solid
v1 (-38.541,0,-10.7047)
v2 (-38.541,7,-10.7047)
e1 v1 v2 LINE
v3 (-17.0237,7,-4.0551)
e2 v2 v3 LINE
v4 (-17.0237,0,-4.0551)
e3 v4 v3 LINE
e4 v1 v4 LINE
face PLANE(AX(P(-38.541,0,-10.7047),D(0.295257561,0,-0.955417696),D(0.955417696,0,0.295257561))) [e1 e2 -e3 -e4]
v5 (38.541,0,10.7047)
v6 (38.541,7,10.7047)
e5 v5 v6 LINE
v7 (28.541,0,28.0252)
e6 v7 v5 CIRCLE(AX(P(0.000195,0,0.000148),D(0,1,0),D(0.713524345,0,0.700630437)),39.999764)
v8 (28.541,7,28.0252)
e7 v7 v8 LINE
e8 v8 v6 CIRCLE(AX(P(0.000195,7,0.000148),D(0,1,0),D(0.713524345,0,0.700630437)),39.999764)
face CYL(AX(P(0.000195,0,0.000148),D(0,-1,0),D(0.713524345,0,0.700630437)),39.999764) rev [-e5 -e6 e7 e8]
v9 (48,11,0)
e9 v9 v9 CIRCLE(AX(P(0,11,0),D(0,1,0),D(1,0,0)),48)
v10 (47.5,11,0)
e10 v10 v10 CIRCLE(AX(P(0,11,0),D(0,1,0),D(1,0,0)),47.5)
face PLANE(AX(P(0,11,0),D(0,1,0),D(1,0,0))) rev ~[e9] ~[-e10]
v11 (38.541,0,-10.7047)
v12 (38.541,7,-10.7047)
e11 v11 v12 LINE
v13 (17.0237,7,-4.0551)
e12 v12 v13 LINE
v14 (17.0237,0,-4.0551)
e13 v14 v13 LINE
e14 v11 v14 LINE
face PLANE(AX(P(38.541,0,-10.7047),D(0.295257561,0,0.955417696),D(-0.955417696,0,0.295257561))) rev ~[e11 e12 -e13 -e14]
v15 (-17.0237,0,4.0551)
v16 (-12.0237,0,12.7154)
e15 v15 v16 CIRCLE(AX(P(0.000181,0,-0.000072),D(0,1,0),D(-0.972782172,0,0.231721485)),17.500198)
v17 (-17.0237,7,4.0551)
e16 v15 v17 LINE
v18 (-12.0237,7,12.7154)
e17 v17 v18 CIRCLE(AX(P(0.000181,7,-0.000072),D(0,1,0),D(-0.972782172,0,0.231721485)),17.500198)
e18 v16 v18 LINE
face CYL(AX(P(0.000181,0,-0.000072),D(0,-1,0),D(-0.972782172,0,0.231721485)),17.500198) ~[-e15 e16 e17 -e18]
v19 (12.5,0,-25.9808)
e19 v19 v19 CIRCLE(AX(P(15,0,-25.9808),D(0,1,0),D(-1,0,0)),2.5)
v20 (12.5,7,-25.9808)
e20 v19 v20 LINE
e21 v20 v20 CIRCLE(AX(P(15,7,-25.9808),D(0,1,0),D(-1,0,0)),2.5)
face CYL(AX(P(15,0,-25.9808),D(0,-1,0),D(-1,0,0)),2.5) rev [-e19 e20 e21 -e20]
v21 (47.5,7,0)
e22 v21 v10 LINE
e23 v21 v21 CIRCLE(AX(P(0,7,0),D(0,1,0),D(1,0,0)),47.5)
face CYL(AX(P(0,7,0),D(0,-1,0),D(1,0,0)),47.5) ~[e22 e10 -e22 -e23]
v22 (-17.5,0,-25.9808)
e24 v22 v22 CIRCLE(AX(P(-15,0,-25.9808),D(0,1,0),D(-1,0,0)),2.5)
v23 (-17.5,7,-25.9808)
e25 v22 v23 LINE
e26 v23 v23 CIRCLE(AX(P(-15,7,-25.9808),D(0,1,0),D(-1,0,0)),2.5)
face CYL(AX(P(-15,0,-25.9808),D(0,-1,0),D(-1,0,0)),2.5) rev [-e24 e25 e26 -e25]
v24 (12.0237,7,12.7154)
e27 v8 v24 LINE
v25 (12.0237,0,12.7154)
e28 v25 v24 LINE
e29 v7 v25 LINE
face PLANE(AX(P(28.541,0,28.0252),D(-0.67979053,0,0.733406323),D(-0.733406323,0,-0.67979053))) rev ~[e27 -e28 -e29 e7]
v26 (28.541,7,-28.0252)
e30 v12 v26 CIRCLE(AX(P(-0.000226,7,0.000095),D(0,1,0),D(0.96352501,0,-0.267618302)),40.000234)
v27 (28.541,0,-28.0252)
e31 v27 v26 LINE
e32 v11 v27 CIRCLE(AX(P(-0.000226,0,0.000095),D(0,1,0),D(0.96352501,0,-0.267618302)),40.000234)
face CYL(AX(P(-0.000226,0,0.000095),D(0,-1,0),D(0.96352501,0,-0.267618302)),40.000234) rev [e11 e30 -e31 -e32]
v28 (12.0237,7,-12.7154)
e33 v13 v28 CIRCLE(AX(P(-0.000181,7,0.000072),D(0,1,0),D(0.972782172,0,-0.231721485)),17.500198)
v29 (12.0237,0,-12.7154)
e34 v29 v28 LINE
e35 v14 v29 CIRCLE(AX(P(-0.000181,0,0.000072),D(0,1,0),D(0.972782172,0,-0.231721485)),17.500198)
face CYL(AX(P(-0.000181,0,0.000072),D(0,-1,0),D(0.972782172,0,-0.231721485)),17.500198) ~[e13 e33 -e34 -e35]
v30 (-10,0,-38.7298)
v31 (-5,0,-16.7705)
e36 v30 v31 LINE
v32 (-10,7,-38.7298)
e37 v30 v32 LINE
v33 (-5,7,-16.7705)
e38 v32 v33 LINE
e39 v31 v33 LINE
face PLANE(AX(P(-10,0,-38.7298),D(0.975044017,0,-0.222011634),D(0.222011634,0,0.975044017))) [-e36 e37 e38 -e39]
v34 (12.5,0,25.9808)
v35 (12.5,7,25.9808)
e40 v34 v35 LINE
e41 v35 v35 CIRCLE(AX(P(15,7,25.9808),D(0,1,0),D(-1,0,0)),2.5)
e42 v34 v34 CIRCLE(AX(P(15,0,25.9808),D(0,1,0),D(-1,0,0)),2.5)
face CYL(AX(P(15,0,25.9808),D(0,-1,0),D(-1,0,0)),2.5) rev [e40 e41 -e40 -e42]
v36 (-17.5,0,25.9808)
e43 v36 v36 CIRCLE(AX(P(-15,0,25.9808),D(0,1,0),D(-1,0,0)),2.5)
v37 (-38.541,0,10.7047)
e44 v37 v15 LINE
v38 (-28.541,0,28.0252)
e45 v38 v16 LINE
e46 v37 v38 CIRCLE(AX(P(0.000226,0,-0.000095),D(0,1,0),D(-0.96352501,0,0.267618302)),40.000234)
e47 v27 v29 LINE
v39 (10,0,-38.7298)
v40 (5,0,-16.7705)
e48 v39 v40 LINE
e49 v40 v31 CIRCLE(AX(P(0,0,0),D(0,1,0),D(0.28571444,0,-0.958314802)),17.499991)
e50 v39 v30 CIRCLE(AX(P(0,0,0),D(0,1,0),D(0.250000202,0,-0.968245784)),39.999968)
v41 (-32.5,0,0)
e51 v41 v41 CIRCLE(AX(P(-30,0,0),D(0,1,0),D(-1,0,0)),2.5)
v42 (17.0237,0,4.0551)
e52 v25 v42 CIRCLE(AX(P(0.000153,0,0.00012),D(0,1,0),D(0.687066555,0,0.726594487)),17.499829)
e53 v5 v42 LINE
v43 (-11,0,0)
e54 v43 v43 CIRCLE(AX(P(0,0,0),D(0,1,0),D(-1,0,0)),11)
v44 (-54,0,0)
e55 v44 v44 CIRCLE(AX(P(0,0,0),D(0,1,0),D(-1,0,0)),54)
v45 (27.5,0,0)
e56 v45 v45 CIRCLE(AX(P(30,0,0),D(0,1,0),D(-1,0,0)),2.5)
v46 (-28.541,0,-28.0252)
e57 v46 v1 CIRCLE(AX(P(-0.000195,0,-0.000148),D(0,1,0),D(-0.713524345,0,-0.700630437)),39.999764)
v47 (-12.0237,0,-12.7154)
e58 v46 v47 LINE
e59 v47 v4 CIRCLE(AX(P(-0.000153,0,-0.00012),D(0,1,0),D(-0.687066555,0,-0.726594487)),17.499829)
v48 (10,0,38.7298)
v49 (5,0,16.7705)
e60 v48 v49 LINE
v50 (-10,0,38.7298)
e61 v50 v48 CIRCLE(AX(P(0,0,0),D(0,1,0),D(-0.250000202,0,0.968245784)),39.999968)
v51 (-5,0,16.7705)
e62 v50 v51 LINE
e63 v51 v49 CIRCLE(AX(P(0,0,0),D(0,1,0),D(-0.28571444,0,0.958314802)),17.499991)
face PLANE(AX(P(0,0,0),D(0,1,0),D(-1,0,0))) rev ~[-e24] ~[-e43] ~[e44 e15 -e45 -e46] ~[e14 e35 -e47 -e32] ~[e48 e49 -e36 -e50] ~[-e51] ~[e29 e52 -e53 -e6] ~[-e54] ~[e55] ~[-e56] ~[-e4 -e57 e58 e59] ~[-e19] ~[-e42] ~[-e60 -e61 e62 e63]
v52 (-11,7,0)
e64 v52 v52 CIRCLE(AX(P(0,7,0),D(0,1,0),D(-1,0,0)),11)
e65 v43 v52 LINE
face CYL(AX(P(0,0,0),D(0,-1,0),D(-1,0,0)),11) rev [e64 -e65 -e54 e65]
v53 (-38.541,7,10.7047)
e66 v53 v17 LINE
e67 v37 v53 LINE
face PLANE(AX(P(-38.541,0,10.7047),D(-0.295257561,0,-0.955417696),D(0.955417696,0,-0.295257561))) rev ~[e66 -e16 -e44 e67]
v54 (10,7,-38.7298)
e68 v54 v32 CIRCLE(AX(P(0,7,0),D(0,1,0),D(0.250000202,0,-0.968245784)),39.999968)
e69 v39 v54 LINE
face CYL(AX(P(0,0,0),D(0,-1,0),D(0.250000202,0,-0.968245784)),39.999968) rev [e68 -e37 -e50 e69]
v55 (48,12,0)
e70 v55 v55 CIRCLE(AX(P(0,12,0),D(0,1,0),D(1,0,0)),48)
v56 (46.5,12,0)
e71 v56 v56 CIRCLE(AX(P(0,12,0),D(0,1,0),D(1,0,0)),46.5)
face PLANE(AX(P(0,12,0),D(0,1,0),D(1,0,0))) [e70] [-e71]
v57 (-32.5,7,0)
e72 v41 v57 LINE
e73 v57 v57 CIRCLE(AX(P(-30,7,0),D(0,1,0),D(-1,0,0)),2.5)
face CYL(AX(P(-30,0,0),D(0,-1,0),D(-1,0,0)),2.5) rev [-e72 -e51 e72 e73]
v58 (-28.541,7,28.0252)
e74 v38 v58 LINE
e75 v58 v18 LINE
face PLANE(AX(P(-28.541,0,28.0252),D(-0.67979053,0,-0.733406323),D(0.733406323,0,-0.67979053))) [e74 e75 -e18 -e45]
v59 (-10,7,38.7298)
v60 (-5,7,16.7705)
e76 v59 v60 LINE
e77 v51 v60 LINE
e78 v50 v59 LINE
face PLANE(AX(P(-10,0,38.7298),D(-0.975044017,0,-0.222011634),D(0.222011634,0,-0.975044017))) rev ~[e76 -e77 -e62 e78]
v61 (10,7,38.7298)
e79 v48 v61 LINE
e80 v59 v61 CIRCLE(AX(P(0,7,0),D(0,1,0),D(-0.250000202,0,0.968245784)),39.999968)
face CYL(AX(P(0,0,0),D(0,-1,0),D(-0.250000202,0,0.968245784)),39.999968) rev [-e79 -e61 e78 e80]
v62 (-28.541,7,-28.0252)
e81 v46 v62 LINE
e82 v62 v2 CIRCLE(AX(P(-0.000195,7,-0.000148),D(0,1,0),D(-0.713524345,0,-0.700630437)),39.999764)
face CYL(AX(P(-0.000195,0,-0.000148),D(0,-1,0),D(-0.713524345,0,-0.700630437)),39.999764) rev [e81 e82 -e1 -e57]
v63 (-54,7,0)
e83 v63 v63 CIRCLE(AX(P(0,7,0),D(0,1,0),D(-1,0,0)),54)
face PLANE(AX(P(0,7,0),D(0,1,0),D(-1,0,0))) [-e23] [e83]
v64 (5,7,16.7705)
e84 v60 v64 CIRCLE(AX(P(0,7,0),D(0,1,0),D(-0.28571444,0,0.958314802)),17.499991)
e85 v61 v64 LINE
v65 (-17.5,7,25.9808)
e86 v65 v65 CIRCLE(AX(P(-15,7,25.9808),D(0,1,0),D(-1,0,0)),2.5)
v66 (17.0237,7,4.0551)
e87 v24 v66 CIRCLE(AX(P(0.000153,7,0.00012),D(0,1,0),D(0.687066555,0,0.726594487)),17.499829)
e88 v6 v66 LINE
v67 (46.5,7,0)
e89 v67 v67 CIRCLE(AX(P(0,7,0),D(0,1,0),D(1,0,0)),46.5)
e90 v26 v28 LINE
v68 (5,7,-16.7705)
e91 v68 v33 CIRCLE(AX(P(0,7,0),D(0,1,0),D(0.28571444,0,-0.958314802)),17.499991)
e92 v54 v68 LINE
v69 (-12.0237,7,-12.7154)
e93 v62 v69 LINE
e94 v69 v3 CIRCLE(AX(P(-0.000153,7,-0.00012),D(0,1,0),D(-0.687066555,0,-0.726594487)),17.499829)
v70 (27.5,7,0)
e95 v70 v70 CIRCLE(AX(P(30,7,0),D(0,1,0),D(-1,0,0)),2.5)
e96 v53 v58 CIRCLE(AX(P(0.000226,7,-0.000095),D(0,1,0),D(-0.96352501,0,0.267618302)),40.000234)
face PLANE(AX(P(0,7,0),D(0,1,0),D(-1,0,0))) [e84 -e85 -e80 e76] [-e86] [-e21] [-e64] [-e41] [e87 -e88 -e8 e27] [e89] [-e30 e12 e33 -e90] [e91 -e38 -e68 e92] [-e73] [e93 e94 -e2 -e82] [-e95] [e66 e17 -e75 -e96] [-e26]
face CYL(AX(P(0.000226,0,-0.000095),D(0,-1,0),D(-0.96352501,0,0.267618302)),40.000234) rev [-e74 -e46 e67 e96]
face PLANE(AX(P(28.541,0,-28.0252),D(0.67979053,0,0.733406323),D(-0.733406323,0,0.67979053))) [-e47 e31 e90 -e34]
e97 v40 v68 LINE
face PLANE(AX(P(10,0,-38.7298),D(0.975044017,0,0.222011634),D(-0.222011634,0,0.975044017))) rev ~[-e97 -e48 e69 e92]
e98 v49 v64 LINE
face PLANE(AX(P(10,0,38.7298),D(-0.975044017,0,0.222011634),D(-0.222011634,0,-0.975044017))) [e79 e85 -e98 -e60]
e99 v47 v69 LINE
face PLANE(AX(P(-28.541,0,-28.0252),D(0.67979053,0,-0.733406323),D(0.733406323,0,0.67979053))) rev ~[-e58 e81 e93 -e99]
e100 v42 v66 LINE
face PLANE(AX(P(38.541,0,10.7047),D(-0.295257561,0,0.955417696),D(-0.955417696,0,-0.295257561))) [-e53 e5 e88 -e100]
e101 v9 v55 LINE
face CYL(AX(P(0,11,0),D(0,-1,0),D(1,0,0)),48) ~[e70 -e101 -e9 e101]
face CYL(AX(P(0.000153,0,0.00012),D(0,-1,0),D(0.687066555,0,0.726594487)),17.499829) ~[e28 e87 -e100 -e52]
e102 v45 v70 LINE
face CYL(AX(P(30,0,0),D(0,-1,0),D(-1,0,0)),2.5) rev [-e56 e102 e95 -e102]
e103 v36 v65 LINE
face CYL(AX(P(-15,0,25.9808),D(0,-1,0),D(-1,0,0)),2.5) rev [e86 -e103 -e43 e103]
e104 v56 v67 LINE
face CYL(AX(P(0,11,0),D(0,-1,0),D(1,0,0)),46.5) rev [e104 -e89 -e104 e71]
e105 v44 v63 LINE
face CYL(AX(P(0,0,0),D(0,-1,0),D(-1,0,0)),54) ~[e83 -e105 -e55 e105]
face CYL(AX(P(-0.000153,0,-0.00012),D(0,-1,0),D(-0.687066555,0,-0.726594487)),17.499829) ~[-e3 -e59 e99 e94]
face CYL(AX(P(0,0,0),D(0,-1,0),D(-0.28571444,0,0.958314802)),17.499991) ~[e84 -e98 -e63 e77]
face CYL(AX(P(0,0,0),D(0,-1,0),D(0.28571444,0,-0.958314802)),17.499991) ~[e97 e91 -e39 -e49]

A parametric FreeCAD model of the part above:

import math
import FreeCAD as App
import Part
import Sketcher

doc = App.newDocument("Part")
params = doc.addObject("Spreadsheet::Sheet", "Params")
for row, (alias, value) in enumerate([
    ("sketch1_diameter", "108 mm"),
    ("sketch1_diameter2", "5 mm"),
    ("sketch1_diameter3", "22 mm"),
    ("sketch1_radius", "40 mm"),
    ("sketch1_radius2", "17.5 mm"),
    ("pad1_length", "7 mm"),
    ("sketch2_diameter", "95 mm"),
    ("sketch2_diameter2", "93 mm"),
    ("pad2_length", "4 mm"),
    ("sketch3_diameter", "96 mm"),
    ("sketch3_diameter2", "93 mm"),
    ("pad3_length", "1 mm"),
], start=1):
    params.set(f"A{row}", alias)
    params.set(f"B{row}", "=" + value)
    params.setAlias(f"B{row}", alias)

body = doc.addObject("PartDesign::Body", "Body")

# Sketch on XZ plane
sketch1 = body.newObject("Sketcher::SketchObject", "Sketch")
sketch1.AttachmentSupport = (doc.getObject("XZ_Plane"), [""])
sketch1.MapMode = "FlatFace"
sketch1.addGeometry([
    Part.Circle(App.Vector(0, 0, 0), App.Vector(0, 0, 1), 54),  # 0
    Part.Circle(App.Vector(15, -25.9808, 0), App.Vector(0, 0, 1), 2.5),  # 1
    Part.ArcOfCircle(Part.Circle(App.Vector(0, 0, 0), App.Vector(0, 0, 1), 40.000006), math.radians(-44.477562), math.radians(-15.522547)),  # 2
    Part.LineSegment(App.Vector(38.541, -10.7047, 0), App.Vector(17.0237, -4.0551, 0)),  # 3
    Part.ArcOfCircle(Part.Circle(App.Vector(0, 0, 0), App.Vector(0, 0, 1), 17.500022), math.radians(-46.601561), math.radians(-13.398352)),  # 4
    Part.LineSegment(App.Vector(12.0237, -12.7154, 0), App.Vector(28.541, -28.0252, 0)),  # 5
    Part.ArcOfCircle(Part.Circle(App.Vector(0, 0, 0), App.Vector(0, 0, 1), 39.999968), math.radians(-104.477524), math.radians(-75.522476)),  # 6
    Part.LineSegment(App.Vector(10, -38.7298, 0), App.Vector(5, -16.7705, 0)),  # 7
    Part.ArcOfCircle(Part.Circle(App.Vector(0, 0, 0), App.Vector(0, 0, 1), 17.499991), math.radians(-106.601559), math.radians(-73.398441)),  # 8
    Part.LineSegment(App.Vector(-5, -16.7705, 0), App.Vector(-10, -38.7298, 0)),  # 9
    Part.Circle(App.Vector(-15, -25.9808, 0), App.Vector(0, 0, 1), 2.5),  # 10
    Part.ArcOfCircle(Part.Circle(App.Vector(0, 0, 0), App.Vector(0, 0, 1), 39.999968), math.radians(-164.477453), math.radians(-135.522438)),  # 11
    Part.LineSegment(App.Vector(-28.541, -28.0252, 0), App.Vector(-12.0237, -12.7154, 0)),  # 12
    Part.ArcOfCircle(Part.Circle(App.Vector(0, 0, 0), App.Vector(0, 0, 1), 17.499991), math.radians(-166.601648), math.radians(-133.398439)),  # 13
    Part.LineSegment(App.Vector(-17.0237, -4.0551, 0), App.Vector(-38.541, -10.7047, 0)),  # 14
    Part.Circle(App.Vector(30, 0, 0), App.Vector(0, 0, 1), 2.5),  # 15
    Part.ArcOfCircle(Part.Circle(App.Vector(0, 0, 0), App.Vector(0, 0, 1), 39.999968), math.radians(15.522547), math.radians(44.477562)),  # 16
    Part.LineSegment(App.Vector(28.541, 28.0252, 0), App.Vector(12.0237, 12.7154, 0)),  # 17
    Part.ArcOfCircle(Part.Circle(App.Vector(0, 0, 0), App.Vector(0, 0, 1), 17.499991), math.radians(13.398352), math.radians(46.601561)),  # 18
    Part.LineSegment(App.Vector(17.0237, 4.0551, 0), App.Vector(38.541, 10.7047, 0)),  # 19
    Part.Circle(App.Vector(15, 25.9808, 0), App.Vector(0, 0, 1), 2.5),  # 20
    Part.Circle(App.Vector(0, 0, 0), App.Vector(0, 0, 1), 11),  # 21
    Part.ArcOfCircle(Part.Circle(App.Vector(0, 0, 0), App.Vector(0, 0, 1), 40.000006), math.radians(135.522438), math.radians(164.477453)),  # 22
    Part.LineSegment(App.Vector(-38.541, 10.7047, 0), App.Vector(-17.0237, 4.0551, 0)),  # 23
    Part.ArcOfCircle(Part.Circle(App.Vector(0, 0, 0), App.Vector(0, 0, 1), 17.500022), math.radians(133.398439), math.radians(166.601648)),  # 24
    Part.LineSegment(App.Vector(-12.0237, 12.7154, 0), App.Vector(-28.541, 28.0252, 0)),  # 25
    Part.Circle(App.Vector(-15, 25.9808, 0), App.Vector(0, 0, 1), 2.5),  # 26
    Part.Circle(App.Vector(-30, 0, 0), App.Vector(0, 0, 1), 2.5),  # 27
    Part.LineSegment(App.Vector(5, 16.7705, 0), App.Vector(10, 38.7298, 0)),  # 28
    Part.ArcOfCircle(Part.Circle(App.Vector(0, 0, 0), App.Vector(0, 0, 1), 39.999968), math.radians(75.522476), math.radians(104.477524)),  # 29
    Part.LineSegment(App.Vector(-10, 38.7298, 0), App.Vector(-5, 16.7705, 0)),  # 30
    Part.ArcOfCircle(Part.Circle(App.Vector(0, 0, 0), App.Vector(0, 0, 1), 17.499991), math.radians(73.398441), math.radians(106.601559)),  # 31
], False)
sketch1.addConstraint([
    Sketcher.Constraint("Coincident", 2, 2, 3, 1),
    Sketcher.Constraint("Coincident", 3, 2, 4, 2),
    Sketcher.Constraint("Coincident", 4, 1, 5, 1),
    Sketcher.Constraint("Coincident", 5, 2, 2, 1),
    Sketcher.Constraint("Coincident", 6, 2, 7, 1),
    Sketcher.Constraint("Coincident", 7, 2, 8, 2),
    Sketcher.Constraint("Coincident", 8, 1, 9, 1),
    Sketcher.Constraint("Coincident", 9, 2, 6, 1),
    Sketcher.Constraint("Coincident", 11, 2, 12, 1),
    Sketcher.Constraint("Coincident", 12, 2, 13, 2),
    Sketcher.Constraint("Coincident", 13, 1, 14, 1),
    Sketcher.Constraint("Coincident", 14, 2, 11, 1),
    Sketcher.Constraint("Coincident", 16, 2, 17, 1),
    Sketcher.Constraint("Coincident", 17, 2, 18, 2),
    Sketcher.Constraint("Coincident", 18, 1, 19, 1),
    Sketcher.Constraint("Coincident", 19, 2, 16, 1),
    Sketcher.Constraint("Coincident", 22, 2, 23, 1),
    Sketcher.Constraint("Coincident", 23, 2, 24, 2),
    Sketcher.Constraint("Coincident", 24, 1, 25, 1),
    Sketcher.Constraint("Coincident", 25, 2, 22, 1),
    Sketcher.Constraint("Coincident", 28, 2, 29, 1),
    Sketcher.Constraint("Coincident", 29, 2, 30, 1),
    Sketcher.Constraint("Coincident", 30, 2, 31, 2),
    Sketcher.Constraint("Coincident", 31, 1, 28, 1),
    Sketcher.Constraint("Coincident", 0, 3, -1, 1),
    Sketcher.Constraint("Coincident", 2, 3, -1, 1),
    Sketcher.Constraint("Coincident", 4, 3, -1, 1),
    Sketcher.Constraint("Coincident", 6, 3, -1, 1),
    Sketcher.Constraint("Coincident", 8, 3, -1, 1),
    Sketcher.Constraint("Coincident", 11, 3, -1, 1),
    Sketcher.Constraint("Coincident", 13, 3, -1, 1),
    Sketcher.Constraint("Coincident", 16, 3, -1, 1),
    Sketcher.Constraint("Coincident", 18, 3, -1, 1),
    Sketcher.Constraint("Coincident", 21, 3, -1, 1),
    Sketcher.Constraint("Coincident", 22, 3, -1, 1),
    Sketcher.Constraint("Coincident", 24, 3, -1, 1),
    Sketcher.Constraint("Coincident", 29, 3, -1, 1),
    Sketcher.Constraint("Coincident", 31, 3, -1, 1),
    Sketcher.Constraint("Equal", 2, 6),
    Sketcher.Constraint("Equal", 4, 8),
    Sketcher.Constraint("Equal", 1, 10),
    Sketcher.Constraint("Equal", 6, 11),
    Sketcher.Constraint("Equal", 8, 13),
    Sketcher.Constraint("Equal", 10, 15),
    Sketcher.Constraint("Equal", 11, 16),
    Sketcher.Constraint("Equal", 13, 18),
    Sketcher.Constraint("Equal", 15, 20),
    Sketcher.Constraint("Equal", 16, 22),
    Sketcher.Constraint("Equal", 18, 24),
    Sketcher.Constraint("Equal", 20, 26),
    Sketcher.Constraint("Equal", 26, 27),
    Sketcher.Constraint("Equal", 22, 29),
    Sketcher.Constraint("Equal", 24, 31),
    Sketcher.Constraint("Symmetric", 10, 3, 20, 3, -1, 1),
    Sketcher.Constraint("Symmetric", 1, 3, 26, 3, -1, 1),
    Sketcher.Constraint("Symmetric", 15, 3, 27, 3, -1, 1),
    Sketcher.Constraint("Symmetric", 1, 3, 10, 3, -2),
    Sketcher.Constraint("PointOnObject", 15, 3, -1),
    Sketcher.Constraint("Parallel", 12, 17),
    Sketcher.Constraint("Parallel", 14, 19),
    Sketcher.Constraint("Parallel", 3, 23),
    Sketcher.Constraint("Parallel", 5, 25),
    Sketcher.Constraint("Parallel", 9, 28),
    Sketcher.Constraint("Parallel", 7, 30),
    Sketcher.Constraint("Horizontal", 7, 2, 8, 1),
    Sketcher.Constraint("Horizontal", 6, 2, 9, 2),
    Sketcher.Constraint("Horizontal", 5, 2, 11, 2),
    Sketcher.Constraint("Horizontal", 4, 1, 12, 2),
    Sketcher.Constraint("Horizontal", 3, 2, 13, 1),
    Sketcher.Constraint("Horizontal", 2, 2, 14, 2),
    Sketcher.Constraint("Horizontal", 19, 2, 22, 2),
    Sketcher.Constraint("Horizontal", 17, 2, 24, 1),
    Sketcher.Constraint("Horizontal", 28, 2, 29, 2),
    Sketcher.Constraint("Vertical", 5, 2, 16, 2),
    Sketcher.Constraint("Vertical", 3, 2, 18, 1),
    Sketcher.Constraint("Vertical", 6, 2, 28, 2),
    Sketcher.Constraint("Equal", 3, 5),
    Sketcher.Constraint("Equal", 5, 7),
    Sketcher.Constraint("Diameter", 0, 108.0),
    Sketcher.Constraint("Diameter", 1, 5.0),
    Sketcher.Constraint("Diameter", 21, 22.0),
    Sketcher.Constraint("Radius", 2, 40.0),
    Sketcher.Constraint("Radius", 4, 17.5),
    Sketcher.Constraint("DistanceX", -1, 1, 6, 2, 10.0),
    Sketcher.Constraint("DistanceX", -1, 1, 7, 2, 5.0),
    Sketcher.Constraint("DistanceX", 4, 1, 3, 2, 5.0),
    Sketcher.Constraint("DistanceX", 6, 2, 1, 3, 5.0),
    Sketcher.Constraint("DistanceX", -1, 1, 15, 3, 30.0),
    Sketcher.Constraint("DistanceY", 5, 2, 3, 2, 23.97),
    Sketcher.Constraint("DistanceY", 1, 3, 2, 2, 15.276),
])
sketch1.setExpression("Constraints[78]", "Params.sketch1_diameter")
sketch1.setExpression("Constraints[79]", "Params.sketch1_diameter2")
sketch1.setExpression("Constraints[80]", "Params.sketch1_diameter3")
sketch1.setExpression("Constraints[81]", "Params.sketch1_radius")
sketch1.setExpression("Constraints[82]", "Params.sketch1_radius2")
pad1 = body.newObject("PartDesign::Pad", "Pad")
pad1.Profile = sketch1
pad1.setExpression("Length", "Params.pad1_length")
pad1.Reversed = True

# Sketch on XZ plane
sketch2 = body.newObject("Sketcher::SketchObject", "Sketch001")
sketch2.AttachmentSupport = (doc.getObject("XZ_Plane"), [""])
sketch2.MapMode = "FlatFace"
sketch2.AttachmentOffset = App.Placement(App.Vector(0, 0, -7), App.Rotation())
sketch2.addGeometry([
    Part.Circle(App.Vector(0, 0, 0), App.Vector(0, 0, 1), 47.5),
    Part.Circle(App.Vector(0, 0, 0), App.Vector(0, 0, 1), 46.5),
], False)
sketch2.addConstraint([
    Sketcher.Constraint("Coincident", 0, 3, -1, 1),
    Sketcher.Constraint("Coincident", 1, 3, -1, 1),
    Sketcher.Constraint("Diameter", 0, 95.0),
    Sketcher.Constraint("Diameter", 1, 93.0),
])
sketch2.setExpression("Constraints[2]", "Params.sketch2_diameter")
sketch2.setExpression("Constraints[3]", "Params.sketch2_diameter2")
pad2 = body.newObject("PartDesign::Pad", "Pad001")
pad2.Profile = sketch2
pad2.setExpression("Length", "Params.pad2_length")
pad2.Reversed = True

# Sketch on XZ plane
sketch3 = body.newObject("Sketcher::SketchObject", "Sketch002")
sketch3.AttachmentSupport = (doc.getObject("XZ_Plane"), [""])
sketch3.MapMode = "FlatFace"
sketch3.AttachmentOffset = App.Placement(App.Vector(0, 0, -11), App.Rotation())
sketch3.addGeometry([
    Part.Circle(App.Vector(0, 0, 0), App.Vector(0, 0, 1), 48),
    Part.Circle(App.Vector(0, 0, 0), App.Vector(0, 0, 1), 46.5),
], False)
sketch3.addConstraint([
    Sketcher.Constraint("Coincident", 0, 3, -1, 1),
    Sketcher.Constraint("Coincident", 1, 3, -1, 1),
    Sketcher.Constraint("Diameter", 0, 96.0),
    Sketcher.Constraint("Diameter", 1, 93.0),
])
sketch3.setExpression("Constraints[2]", "Params.sketch3_diameter")
sketch3.setExpression("Constraints[3]", "Params.sketch3_diameter2")
pad3 = body.newObject("PartDesign::Pad", "Pad002")
pad3.Profile = sketch3
pad3.setExpression("Length", "Params.pad3_length")
pad3.Reversed = True

doc.recompute()
